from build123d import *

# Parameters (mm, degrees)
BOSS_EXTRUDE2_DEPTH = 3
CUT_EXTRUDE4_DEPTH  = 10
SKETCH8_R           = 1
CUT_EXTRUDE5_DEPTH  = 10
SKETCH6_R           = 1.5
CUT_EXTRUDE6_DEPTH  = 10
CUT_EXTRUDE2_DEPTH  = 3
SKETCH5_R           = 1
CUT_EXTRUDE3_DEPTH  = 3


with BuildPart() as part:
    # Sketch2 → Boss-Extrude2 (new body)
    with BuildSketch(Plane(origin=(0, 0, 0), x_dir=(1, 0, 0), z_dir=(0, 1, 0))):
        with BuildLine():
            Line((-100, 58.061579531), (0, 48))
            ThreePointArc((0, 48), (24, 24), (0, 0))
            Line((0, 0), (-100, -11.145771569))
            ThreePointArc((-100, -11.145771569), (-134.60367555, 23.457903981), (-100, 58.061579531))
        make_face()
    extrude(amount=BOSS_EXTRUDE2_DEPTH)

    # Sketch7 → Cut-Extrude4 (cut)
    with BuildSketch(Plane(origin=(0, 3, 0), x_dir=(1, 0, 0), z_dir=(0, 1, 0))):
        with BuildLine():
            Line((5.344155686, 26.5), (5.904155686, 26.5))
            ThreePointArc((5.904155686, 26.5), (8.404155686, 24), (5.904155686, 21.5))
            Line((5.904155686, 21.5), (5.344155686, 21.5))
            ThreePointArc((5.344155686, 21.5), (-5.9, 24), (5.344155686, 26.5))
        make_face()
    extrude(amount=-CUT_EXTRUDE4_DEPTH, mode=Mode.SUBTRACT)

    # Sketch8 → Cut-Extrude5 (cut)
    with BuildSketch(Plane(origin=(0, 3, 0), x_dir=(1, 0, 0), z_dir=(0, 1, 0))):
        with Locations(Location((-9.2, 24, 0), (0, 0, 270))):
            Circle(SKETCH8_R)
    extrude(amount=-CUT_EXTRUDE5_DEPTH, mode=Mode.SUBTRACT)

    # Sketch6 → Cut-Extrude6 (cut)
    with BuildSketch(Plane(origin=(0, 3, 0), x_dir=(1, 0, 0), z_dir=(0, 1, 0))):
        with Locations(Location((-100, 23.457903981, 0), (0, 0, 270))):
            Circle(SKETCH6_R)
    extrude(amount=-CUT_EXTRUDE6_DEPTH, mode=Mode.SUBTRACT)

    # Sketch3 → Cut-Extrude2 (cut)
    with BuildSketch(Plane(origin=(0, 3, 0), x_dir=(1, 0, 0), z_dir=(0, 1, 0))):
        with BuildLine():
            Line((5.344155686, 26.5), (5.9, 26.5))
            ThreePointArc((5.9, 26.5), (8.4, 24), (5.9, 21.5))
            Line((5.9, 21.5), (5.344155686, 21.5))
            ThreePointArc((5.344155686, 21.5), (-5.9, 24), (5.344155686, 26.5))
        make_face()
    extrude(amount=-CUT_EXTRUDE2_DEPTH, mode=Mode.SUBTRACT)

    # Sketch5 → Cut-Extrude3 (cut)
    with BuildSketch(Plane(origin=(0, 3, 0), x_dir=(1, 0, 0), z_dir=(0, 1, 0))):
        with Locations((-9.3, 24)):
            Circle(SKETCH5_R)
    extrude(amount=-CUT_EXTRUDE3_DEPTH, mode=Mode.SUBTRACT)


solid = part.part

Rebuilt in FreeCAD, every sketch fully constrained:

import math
import FreeCAD as App
import Part
import Sketcher

doc = App.newDocument("Part")
body = doc.addObject("PartDesign::Body", "Body")

# Sketch on XZ plane
sketch1 = doc.addObject("Sketcher::SketchObject", "Sketch")
body.addObject(sketch1)
sketch1.AttachmentSupport = (doc.XZ_Plane, [""])
sketch1.MapMode = "FlatFace"
sketch1.addGeometry([
    Part.LineSegment(App.Vector(0, -48, 0), App.Vector(-100, -58.06158, 0)),
    Part.ArcOfCircle(Part.Circle(App.Vector(-100, -23.457904, 0), App.Vector(0, 0, 1), 34.603676), math.radians(90), math.radians(270)),
    Part.LineSegment(App.Vector(-100, 11.145772, 0), App.Vector(0, 0, 0)),
    Part.ArcOfCircle(Part.Circle(App.Vector(0, -24, 0), App.Vector(0, 0, 1), 24), math.radians(-90), math.radians(90)),
], False)
sketch1.addConstraint([
    Sketcher.Constraint("Coincident", 0, 2, 1, 2),
    Sketcher.Constraint("Coincident", 1, 1, 2, 1),
    Sketcher.Constraint("Coincident", 2, 2, 3, 2),
    Sketcher.Constraint("Coincident", 3, 1, 0, 1),
    Sketcher.Constraint("Coincident", 2, 2, -1, 1),
    Sketcher.Constraint("PointOnObject", 3, 3, -2),
    Sketcher.Constraint("PointOnObject", 3, 1, -2),
    Sketcher.Constraint("Vertical", 1, 3, 0, 2),
    Sketcher.Constraint("Vertical", 0, 2, 1, 1),
    Sketcher.Constraint("Radius", 3, 24.0),
    Sketcher.Constraint("DistanceX", 1, 3, -1, 1, 100.0),
    Sketcher.Constraint("Radius", 1, 34.603676),
    Sketcher.Constraint("DistanceY", 0, 2, -1, 1, 58.06158),
])
pad1 = doc.addObject("PartDesign::Pad", "Pad")
body.addObject(pad1)
pad1.Profile = sketch1
pad1.Length = 3
pad1.Reversed = True

# Sketch on XZ plane
sketch2 = doc.addObject("Sketcher::SketchObject", "Sketch001")
body.addObject(sketch2)
sketch2.AttachmentSupport = (doc.XZ_Plane, [""])
sketch2.MapMode = "FlatFace"
sketch2.AttachmentOffset = App.Placement(App.Vector(0, 0, -3), App.Rotation())
sketch2.addGeometry([
    Part.LineSegment(App.Vector(5.904156, -26.5, 0), App.Vector(5.344156, -26.5, 0)),
    Part.ArcOfCircle(Part.Circle(App.Vector(0, -24, 0), App.Vector(0, 0, 1), 5.9), math.radians(25.070228), math.radians(334.929772)),
    Part.LineSegment(App.Vector(5.344156, -21.5, 0), App.Vector(5.904156, -21.5, 0)),
    Part.ArcOfCircle(Part.Circle(App.Vector(5.904156, -24, 0), App.Vector(0, 0, 1), 2.5), math.radians(-90), math.radians(90)),
], False)
sketch2.addConstraint([
    Sketcher.Constraint("Coincident", 0, 2, 1, 2),
    Sketcher.Constraint("Coincident", 1, 1, 2, 1),
    Sketcher.Constraint("Tangent", 2, 2, 3, 2),
    Sketcher.Constraint("Tangent", 3, 1, 0, 1),
    Sketcher.Constraint("Horizontal", 0),
    Sketcher.Constraint("Horizontal", 2),
    Sketcher.Constraint("PointOnObject", 1, 3, -2),
    Sketcher.Constraint("Horizontal", 1, 3, 3, 3),
    Sketcher.Constraint("Radius", 1, 5.9),
    Sketcher.Constraint("Radius", 3, 2.5),
    Sketcher.Constraint("DistanceY", 1, 3, -1, 1, 24.0),
    Sketcher.Constraint("DistanceX", 0, 2, 0, 1, 0.56),
])
pocket1 = doc.addObject("PartDesign::Pocket", "Pocket")
body.addObject(pocket1)
pocket1.Profile = sketch2
pocket1.Length = 10
pocket1.Reversed = True

# Sketch on XZ plane
sketch3 = doc.addObject("Sketcher::SketchObject", "Sketch002")
body.addObject(sketch3)
sketch3.AttachmentSupport = (doc.XZ_Plane, [""])
sketch3.MapMode = "FlatFace"
sketch3.AttachmentOffset = App.Placement(App.Vector(0, 0, -3), App.Rotation())
sketch3.addGeometry(Part.Circle(App.Vector(-9.2, -24, 0), App.Vector(0, 0, 1), 1), False)
sketch3.addConstraint([
    Sketcher.Constraint("Diameter", 0, 2.0),
    Sketcher.Constraint("DistanceY", 0, 3, -1, 1, 24.0),
    Sketcher.Constraint("DistanceX", 0, 3, -1, 1, 9.2),
])
pocket2 = doc.addObject("PartDesign::Pocket", "Pocket001")
body.addObject(pocket2)
pocket2.Profile = sketch3
pocket2.Length = 10
pocket2.Reversed = True

# Sketch on XZ plane
sketch4 = doc.addObject("Sketcher::SketchObject", "Sketch003")
body.addObject(sketch4)
sketch4.AttachmentSupport = (doc.XZ_Plane, [""])
sketch4.MapMode = "FlatFace"
sketch4.AttachmentOffset = App.Placement(App.Vector(0, 0, -3), App.Rotation())
sketch4.addGeometry(Part.Circle(App.Vector(-100, -23.457904, 0), App.Vector(0, 0, 1), 1.5), False)
sketch4.addConstraint([
    Sketcher.Constraint("Diameter", 0, 3.0),
    Sketcher.Constraint("DistanceX", 0, 3, -1, 1, 100.0),
    Sketcher.Constraint("DistanceY", 0, 3, -1, 1, 23.457904),
])
pocket3 = doc.addObject("PartDesign::Pocket", "Pocket002")
body.addObject(pocket3)
pocket3.Profile = sketch4
pocket3.Length = 10
pocket3.Reversed = True

# Sketch on XZ plane
sketch5 = doc.addObject("Sketcher::SketchObject", "Sketch004")
body.addObject(sketch5)
sketch5.AttachmentSupport = (doc.XZ_Plane, [""])
sketch5.MapMode = "FlatFace"
sketch5.AttachmentOffset = App.Placement(App.Vector(0, 0, -3), App.Rotation())
sketch5.addGeometry([
    Part.LineSegment(App.Vector(5.9, -26.5, 0), App.Vector(5.344156, -26.5, 0)),
    Part.ArcOfCircle(Part.Circle(App.Vector(0, -24, 0), App.Vector(0, 0, 1), 5.9), math.radians(25.070228), math.radians(334.929772)),
    Part.LineSegment(App.Vector(5.344156, -21.5, 0), App.Vector(5.9, -21.5, 0)),
    Part.ArcOfCircle(Part.Circle(App.Vector(5.9, -24, 0), App.Vector(0, 0, 1), 2.5), math.radians(-90), math.radians(90)),
], False)
sketch5.addConstraint([
    Sketcher.Constraint("Coincident", 0, 2, 1, 2),
    Sketcher.Constraint("Coincident", 1, 1, 2, 1),
    Sketcher.Constraint("Tangent", 2, 2, 3, 2),
    Sketcher.Constraint("Tangent", 3, 1, 0, 1),
    Sketcher.Constraint("Horizontal", 0),
    Sketcher.Constraint("Horizontal", 2),
    Sketcher.Constraint("PointOnObject", 1, 3, -2),
    Sketcher.Constraint("Horizontal", 1, 3, 3, 3),
    Sketcher.Constraint("Radius", 1, 5.9),
    Sketcher.Constraint("Radius", 3, 2.5),
    Sketcher.Constraint("DistanceY", 1, 3, -1, 1, 24.0),
    Sketcher.Constraint("DistanceX", -1, 1, 3, 3, 5.9),
])
pocket4 = doc.addObject("PartDesign::Pocket", "Pocket003")
body.addObject(pocket4)
pocket4.Profile = sketch5
pocket4.Length = 3
pocket4.Reversed = True

# Sketch on XZ plane
sketch6 = doc.addObject("Sketcher::SketchObject", "Sketch005")
body.addObject(sketch6)
sketch6.AttachmentSupport = (doc.XZ_Plane, [""])
sketch6.MapMode = "FlatFace"
sketch6.AttachmentOffset = App.Placement(App.Vector(0, 0, -3), App.Rotation())
sketch6.addGeometry(Part.Circle(App.Vector(-9.3, -24, 0), App.Vector(0, 0, 1), 1), False)
sketch6.addConstraint([
    Sketcher.Constraint("Diameter", 0, 2.0),
    Sketcher.Constraint("DistanceY", 0, 3, -1, 1, 24.0),
    Sketcher.Constraint("DistanceX", 0, 3, -1, 1, 9.3),
])
pocket5 = doc.addObject("PartDesign::Pocket", "Pocket004")
body.addObject(pocket5)
pocket5.Profile = sketch6
pocket5.Length = 3
pocket5.Reversed = True

doc.recompute()
